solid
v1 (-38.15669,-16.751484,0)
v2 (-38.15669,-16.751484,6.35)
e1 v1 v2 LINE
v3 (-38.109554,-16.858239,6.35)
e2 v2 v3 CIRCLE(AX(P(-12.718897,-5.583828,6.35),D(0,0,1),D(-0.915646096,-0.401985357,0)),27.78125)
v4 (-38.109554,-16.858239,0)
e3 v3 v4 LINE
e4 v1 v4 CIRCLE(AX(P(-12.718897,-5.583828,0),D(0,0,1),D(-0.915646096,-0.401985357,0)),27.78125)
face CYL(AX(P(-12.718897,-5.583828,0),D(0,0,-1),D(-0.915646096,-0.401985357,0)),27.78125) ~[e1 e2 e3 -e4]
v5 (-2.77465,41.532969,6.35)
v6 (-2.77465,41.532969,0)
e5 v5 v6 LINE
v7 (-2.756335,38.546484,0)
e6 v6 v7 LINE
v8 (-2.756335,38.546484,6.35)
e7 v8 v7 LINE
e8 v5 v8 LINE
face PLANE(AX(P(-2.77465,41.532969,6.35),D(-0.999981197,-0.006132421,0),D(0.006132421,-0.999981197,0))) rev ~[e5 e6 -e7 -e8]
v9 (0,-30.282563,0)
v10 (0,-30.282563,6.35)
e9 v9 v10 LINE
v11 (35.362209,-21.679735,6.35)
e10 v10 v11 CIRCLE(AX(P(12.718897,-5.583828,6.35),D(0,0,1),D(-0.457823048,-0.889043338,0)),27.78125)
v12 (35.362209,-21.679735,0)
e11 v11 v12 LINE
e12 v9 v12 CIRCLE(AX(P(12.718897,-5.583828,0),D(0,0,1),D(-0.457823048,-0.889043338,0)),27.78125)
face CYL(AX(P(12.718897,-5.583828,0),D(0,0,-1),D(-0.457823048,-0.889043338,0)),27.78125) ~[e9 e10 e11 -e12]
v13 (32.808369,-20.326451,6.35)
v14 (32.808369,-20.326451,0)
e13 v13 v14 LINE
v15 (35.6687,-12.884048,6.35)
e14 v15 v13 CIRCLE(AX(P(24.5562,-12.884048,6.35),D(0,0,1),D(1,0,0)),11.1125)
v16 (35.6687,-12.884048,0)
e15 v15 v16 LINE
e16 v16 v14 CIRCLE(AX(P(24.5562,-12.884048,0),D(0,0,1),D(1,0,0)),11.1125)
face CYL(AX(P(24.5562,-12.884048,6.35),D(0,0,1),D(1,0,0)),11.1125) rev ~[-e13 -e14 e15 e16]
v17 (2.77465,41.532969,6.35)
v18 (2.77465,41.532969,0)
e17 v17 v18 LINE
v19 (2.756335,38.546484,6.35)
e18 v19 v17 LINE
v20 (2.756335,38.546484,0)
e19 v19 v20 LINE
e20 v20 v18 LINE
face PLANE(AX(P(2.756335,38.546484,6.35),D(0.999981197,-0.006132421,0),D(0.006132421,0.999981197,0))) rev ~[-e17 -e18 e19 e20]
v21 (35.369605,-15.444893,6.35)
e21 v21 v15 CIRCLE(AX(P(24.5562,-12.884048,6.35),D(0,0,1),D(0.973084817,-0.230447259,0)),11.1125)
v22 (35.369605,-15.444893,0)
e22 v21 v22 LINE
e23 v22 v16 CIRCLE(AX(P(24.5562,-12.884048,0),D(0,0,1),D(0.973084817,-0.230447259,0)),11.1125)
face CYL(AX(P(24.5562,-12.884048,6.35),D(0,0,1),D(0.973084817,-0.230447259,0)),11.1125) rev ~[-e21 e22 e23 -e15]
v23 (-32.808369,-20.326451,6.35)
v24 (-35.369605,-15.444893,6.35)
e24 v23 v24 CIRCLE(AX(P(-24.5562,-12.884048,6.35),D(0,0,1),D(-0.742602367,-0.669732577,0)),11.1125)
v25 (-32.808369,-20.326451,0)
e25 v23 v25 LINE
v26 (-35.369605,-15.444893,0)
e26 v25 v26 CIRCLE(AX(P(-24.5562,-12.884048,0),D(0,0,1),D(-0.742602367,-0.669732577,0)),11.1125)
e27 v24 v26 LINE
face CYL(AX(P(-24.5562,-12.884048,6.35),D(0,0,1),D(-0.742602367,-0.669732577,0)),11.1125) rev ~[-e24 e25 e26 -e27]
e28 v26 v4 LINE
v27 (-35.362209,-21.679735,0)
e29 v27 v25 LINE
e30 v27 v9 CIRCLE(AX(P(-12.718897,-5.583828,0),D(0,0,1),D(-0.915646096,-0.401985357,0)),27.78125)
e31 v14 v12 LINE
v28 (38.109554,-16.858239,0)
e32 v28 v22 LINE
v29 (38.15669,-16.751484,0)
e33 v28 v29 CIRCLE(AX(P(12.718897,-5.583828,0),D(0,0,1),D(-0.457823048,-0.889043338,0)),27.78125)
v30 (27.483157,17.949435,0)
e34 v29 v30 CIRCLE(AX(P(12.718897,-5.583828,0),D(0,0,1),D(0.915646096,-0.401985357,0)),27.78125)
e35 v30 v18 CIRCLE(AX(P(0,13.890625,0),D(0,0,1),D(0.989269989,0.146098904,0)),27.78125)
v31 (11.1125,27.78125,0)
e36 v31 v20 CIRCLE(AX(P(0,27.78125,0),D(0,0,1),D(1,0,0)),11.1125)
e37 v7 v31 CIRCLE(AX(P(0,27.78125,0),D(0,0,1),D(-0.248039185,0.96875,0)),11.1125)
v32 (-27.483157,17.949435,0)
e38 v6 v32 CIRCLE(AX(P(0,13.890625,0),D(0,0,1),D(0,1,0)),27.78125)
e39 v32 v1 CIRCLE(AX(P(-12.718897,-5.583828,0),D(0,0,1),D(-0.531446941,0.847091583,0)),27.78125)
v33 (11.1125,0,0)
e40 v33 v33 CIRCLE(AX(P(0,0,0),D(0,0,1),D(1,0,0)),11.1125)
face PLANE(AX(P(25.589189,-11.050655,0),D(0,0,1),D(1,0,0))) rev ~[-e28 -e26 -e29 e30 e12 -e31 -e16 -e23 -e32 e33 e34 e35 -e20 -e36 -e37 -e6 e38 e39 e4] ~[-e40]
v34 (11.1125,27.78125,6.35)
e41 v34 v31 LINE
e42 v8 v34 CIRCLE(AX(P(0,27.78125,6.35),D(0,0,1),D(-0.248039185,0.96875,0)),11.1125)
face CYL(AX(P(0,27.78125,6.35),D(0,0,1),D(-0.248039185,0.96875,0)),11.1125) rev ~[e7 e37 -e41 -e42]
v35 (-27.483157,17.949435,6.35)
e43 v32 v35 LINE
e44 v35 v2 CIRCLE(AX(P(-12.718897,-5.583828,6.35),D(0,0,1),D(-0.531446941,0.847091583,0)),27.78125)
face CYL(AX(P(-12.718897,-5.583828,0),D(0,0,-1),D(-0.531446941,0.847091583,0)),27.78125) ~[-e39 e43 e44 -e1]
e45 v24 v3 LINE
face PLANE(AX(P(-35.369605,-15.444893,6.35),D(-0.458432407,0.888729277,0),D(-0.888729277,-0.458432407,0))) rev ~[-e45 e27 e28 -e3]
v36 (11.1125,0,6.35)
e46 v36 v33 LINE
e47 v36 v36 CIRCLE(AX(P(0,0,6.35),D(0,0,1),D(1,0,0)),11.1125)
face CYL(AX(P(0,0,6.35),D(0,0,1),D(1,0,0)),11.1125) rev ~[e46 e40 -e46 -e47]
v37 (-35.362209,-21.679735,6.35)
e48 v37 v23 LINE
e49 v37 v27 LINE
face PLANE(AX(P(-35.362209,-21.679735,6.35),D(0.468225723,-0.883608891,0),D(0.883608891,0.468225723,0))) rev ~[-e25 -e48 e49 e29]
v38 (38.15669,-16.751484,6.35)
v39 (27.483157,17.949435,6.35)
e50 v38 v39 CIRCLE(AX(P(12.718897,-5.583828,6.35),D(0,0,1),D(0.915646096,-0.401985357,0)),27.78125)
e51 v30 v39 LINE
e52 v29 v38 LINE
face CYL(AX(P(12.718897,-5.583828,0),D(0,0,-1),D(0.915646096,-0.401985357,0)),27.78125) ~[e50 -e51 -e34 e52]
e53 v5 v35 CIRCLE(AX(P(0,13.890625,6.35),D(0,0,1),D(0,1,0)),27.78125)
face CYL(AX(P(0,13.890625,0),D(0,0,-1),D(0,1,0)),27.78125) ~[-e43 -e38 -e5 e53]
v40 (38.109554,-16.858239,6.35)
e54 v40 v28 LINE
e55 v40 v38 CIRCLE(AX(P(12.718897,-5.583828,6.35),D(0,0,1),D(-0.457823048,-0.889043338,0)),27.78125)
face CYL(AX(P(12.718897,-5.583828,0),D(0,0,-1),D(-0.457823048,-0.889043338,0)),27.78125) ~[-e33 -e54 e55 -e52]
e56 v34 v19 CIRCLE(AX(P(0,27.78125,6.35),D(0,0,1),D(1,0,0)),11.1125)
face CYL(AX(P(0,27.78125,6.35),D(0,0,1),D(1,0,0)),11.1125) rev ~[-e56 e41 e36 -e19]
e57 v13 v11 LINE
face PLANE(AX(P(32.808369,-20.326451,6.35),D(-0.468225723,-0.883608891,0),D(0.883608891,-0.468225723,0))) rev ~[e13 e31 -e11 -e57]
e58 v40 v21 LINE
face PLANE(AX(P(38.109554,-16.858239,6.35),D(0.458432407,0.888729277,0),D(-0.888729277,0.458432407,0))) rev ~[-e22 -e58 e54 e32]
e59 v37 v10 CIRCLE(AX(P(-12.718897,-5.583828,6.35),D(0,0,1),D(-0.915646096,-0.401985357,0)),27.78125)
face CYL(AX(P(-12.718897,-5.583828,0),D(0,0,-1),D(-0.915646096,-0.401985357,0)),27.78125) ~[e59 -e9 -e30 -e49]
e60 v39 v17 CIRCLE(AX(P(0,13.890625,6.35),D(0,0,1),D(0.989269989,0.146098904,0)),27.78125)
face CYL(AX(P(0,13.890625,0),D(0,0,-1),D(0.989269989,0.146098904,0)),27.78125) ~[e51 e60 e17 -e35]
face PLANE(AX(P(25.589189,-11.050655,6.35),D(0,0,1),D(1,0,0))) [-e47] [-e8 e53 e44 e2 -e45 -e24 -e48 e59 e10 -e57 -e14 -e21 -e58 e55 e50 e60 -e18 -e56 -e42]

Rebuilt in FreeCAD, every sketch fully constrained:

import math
import FreeCAD as App
import Part
import Sketcher
from FreeCAD import Vector
Q = App.Units.Quantity

doc = App.newDocument("Part")
body = doc.addObject("PartDesign::Body", "Body")

# Sketch on XY plane
sketch1 = body.newObject("Sketcher::SketchObject", "Sketch")
sketch1.AttachmentSupport = (doc.getObject("XY_Plane"), [""])
sketch1.MapMode = "FlatFace"
sketch1.addGeometry([
    Part.ArcOfCircle(Part.Circle(Vector(0, 13.890625, 0), Vector(0, 0, 1), 27.78125), math.radians(8.400919), math.radians(90)),  # 0
    Part.ArcOfCircle(Part.Circle(Vector(0, 13.890625, 0), Vector(0, 0, 1), 27.78125), math.radians(90), math.radians(171.599081)),  # 1
    Part.ArcOfCircle(Part.Circle(Vector(-12.718897, -5.583828, 0), Vector(0, 0, 1), 27.78125), math.radians(122.103271), math.radians(203.702352)),  # 2
    Part.ArcOfCircle(Part.Circle(Vector(-12.718897, -5.583828, 0), Vector(0, 0, 1), 27.78125), math.radians(-156.297648), math.radians(-62.753278)),  # 3
    Part.ArcOfCircle(Part.Circle(Vector(12.718897, -5.583828, 0), Vector(0, 0, 1), 27.78125), math.radians(-117.246722), math.radians(-23.702352)),  # 4
    Part.ArcOfCircle(Part.Circle(Vector(12.718897, -5.583828, 0), Vector(0, 0, 1), 27.78125), math.radians(-23.702352), math.radians(57.896729)),  # 5
], False)
sketch1.addConstraint([
    Sketcher.Constraint("Tangent", 0, 2, 1, 1),
    Sketcher.Constraint("Coincident", 1, 2, 2, 1),
    Sketcher.Constraint("Tangent", 2, 2, 3, 1),
    Sketcher.Constraint("Coincident", 3, 2, 4, 1),
    Sketcher.Constraint("Tangent", 4, 2, 5, 1),
    Sketcher.Constraint("Coincident", 5, 2, 0, 1),
    Sketcher.Constraint("Equal", 0, 1),
    Sketcher.Constraint("Equal", 1, 2),
    Sketcher.Constraint("Equal", 2, 3),
    Sketcher.Constraint("Equal", 3, 4),
    Sketcher.Constraint("Equal", 4, 5),
    Sketcher.Constraint("Symmetric", 2, 3, 4, 3, -2),
    Sketcher.Constraint("PointOnObject", 0, 3, -2),
    Sketcher.Constraint("PointOnObject", 0, 2, -2),
    Sketcher.Constraint("Horizontal", 2, 2, 4, 2),
    Sketcher.Constraint("Radius", 0, Q("1.09375 in")),
    Sketcher.Constraint("DistanceY", -1, 1, 0, 3, Q("0.546875 in")),
    Sketcher.Constraint("DistanceX", 2, 2, -1, 1, Q("38.15669 mm")),
    Sketcher.Constraint("DistanceX", 1, 2, 2, 3, Q("14.76426 mm")),
    Sketcher.Constraint("DistanceY", 0, 3, 1, 2, Q("4.05881 mm")),
])
pad1 = body.newObject("PartDesign::Pad", "Pad")
pad1.Profile = sketch1
pad1.Length = Q("0.25 in")

# Sketch on XY plane
sketch2 = body.newObject("Sketcher::SketchObject", "Sketch001")
sketch2.AttachmentSupport = (doc.getObject("XY_Plane"), [""])
sketch2.MapMode = "FlatFace"
sketch2.AttachmentOffset = App.Placement(Vector(0, 0, 0.25 * 25.4), App.Rotation())
sketch2.addGeometry([
    Part.Circle(Vector(0, 0, 0), Vector(0, 0, 1), 11.1125),  # 0
    Part.ArcOfCircle(Part.Circle(Vector(0, 27.78125, 0), Vector(0, 0, 1), 11.1125), math.radians(104.361512), math.radians(360)),  # 1
    Part.ArcOfCircle(Part.Circle(Vector(0, 27.78125, 0), Vector(0, 0, 1), 11.1125), math.radians(0), math.radians(75.638488)),  # 2
    Part.LineSegment(Vector(2.756335, 38.546484, 0), Vector(2.77465, 41.532969, 0)),  # 3
    Part.ArcOfCircle(Part.Circle(Vector(0, 13.890625, 0), Vector(0, 0, 1), 27.78125), math.radians(84.268032), math.radians(90)),  # 4
    Part.ArcOfCircle(Part.Circle(Vector(0, 13.890625, 0), Vector(0, 0, 1), 27.78125), math.radians(90), math.radians(95.731968)),  # 5
    Part.LineSegment(Vector(-2.77465, 41.532969, 0), Vector(-2.756335, 38.546484, 0)),  # 6
    Part.ArcOfCircle(Part.Circle(Vector(-24.5562, -12.884048, 0), Vector(0, 0, 1), 11.1125), math.radians(-137.953572), math.radians(193.323405)),  # 7
    Part.LineSegment(Vector(-35.369605, -15.444893, 0), Vector(-38.109554, -16.858239, 0)),  # 8
    Part.ArcOfCircle(Part.Circle(Vector(-12.718897, -5.583828, 0), Vector(0, 0, 1), 27.78125), math.radians(-156.056972), math.radians(-150.325004)),  # 9
    Part.ArcOfCircle(Part.Circle(Vector(-12.718897, -5.583828, 0), Vector(0, 0, 1), 27.78125), math.radians(-150.325004), math.radians(-144.593036)),  # 10
    Part.LineSegment(Vector(-35.362209, -21.679735, 0), Vector(-32.808369, -20.326451, 0)),  # 11
    Part.ArcOfCircle(Part.Circle(Vector(24.5562, -12.884048, 0), Vector(0, 0, 1), 11.1125), math.radians(-13.323405), math.radians(0)),  # 12
    Part.ArcOfCircle(Part.Circle(Vector(24.5562, -12.884048, 0), Vector(0, 0, 1), 11.1125), math.radians(0), math.radians(317.953572)),  # 13
    Part.LineSegment(Vector(32.808369, -20.326451, 0), Vector(35.362209, -21.679735, 0)),  # 14
    Part.ArcOfCircle(Part.Circle(Vector(12.718897, -5.583828, 0), Vector(0, 0, 1), 27.78125), math.radians(-35.406964), math.radians(-29.674996)),  # 15
    Part.ArcOfCircle(Part.Circle(Vector(12.718897, -5.583828, 0), Vector(0, 0, 1), 27.78125), math.radians(-29.674996), math.radians(-23.943028)),  # 16
    Part.LineSegment(Vector(38.109554, -16.858239, 0), Vector(35.369605, -15.444893, 0)),  # 17
], False)
sketch2.addConstraint([
    Sketcher.Constraint("Tangent", 1, 2, 2, 1),
    Sketcher.Constraint("Coincident", 2, 2, 3, 1),
    Sketcher.Constraint("Coincident", 3, 2, 4, 1),
    Sketcher.Constraint("Tangent", 4, 2, 5, 1),
    Sketcher.Constraint("Coincident", 5, 2, 6, 1),
    Sketcher.Constraint("Coincident", 6, 2, 1, 1),
    Sketcher.Constraint("Coincident", 7, 2, 8, 1),
    Sketcher.Constraint("Coincident", 8, 2, 9, 1),
    Sketcher.Constraint("Tangent", 9, 2, 10, 1),
    Sketcher.Constraint("Coincident", 10, 2, 11, 1),
    Sketcher.Constraint("Coincident", 11, 2, 7, 1),
    Sketcher.Constraint("Tangent", 12, 2, 13, 1),
    Sketcher.Constraint("Coincident", 13, 2, 14, 1),
    Sketcher.Constraint("Coincident", 14, 2, 15, 1),
    Sketcher.Constraint("Tangent", 15, 2, 16, 1),
    Sketcher.Constraint("Coincident", 16, 2, 17, 1),
    Sketcher.Constraint("Coincident", 17, 2, 12, 1),
    Sketcher.Constraint("Coincident", 0, 3, -1, 1),
    Sketcher.Constraint("Equal", 0, 1),
    Sketcher.Constraint("Equal", 1, 2),
    Sketcher.Constraint("Equal", 4, 5),
    Sketcher.Constraint("Equal", 2, 7),
    Sketcher.Constraint("Equal", 5, 9),
    Sketcher.Constraint("Equal", 9, 10),
    Sketcher.Constraint("Equal", 7, 12),
    Sketcher.Constraint("Equal", 12, 13),
    Sketcher.Constraint("Equal", 10, 15),
    Sketcher.Constraint("Equal", 15, 16),
    Sketcher.Constraint("Symmetric", 7, 3, 12, 3, -2),
    Sketcher.Constraint("Symmetric", 9, 3, 15, 3, -2),
    Sketcher.Constraint("Symmetric", 3, 2, 5, 2, -2),
    Sketcher.Constraint("Symmetric", 2, 2, 6, 2, -2),
    Sketcher.Constraint("PointOnObject", 4, 2, -2),
    Sketcher.Constraint("Horizontal", 2, 3, 1, 2),
    Sketcher.Constraint("Horizontal", 13, 3, 12, 2),
    Sketcher.Constraint("Horizontal", 11, 2, 13, 2),
    Sketcher.Constraint("Horizontal", 10, 2, 14, 2),
    Sketcher.Constraint("Horizontal", 9, 2, 15, 2),
    Sketcher.Constraint("Horizontal", 8, 2, 16, 2),
    Sketcher.Constraint("Horizontal", 7, 2, 17, 2),
    Sketcher.Constraint("Diameter", 0, Q("0.875 in")),
    Sketcher.Constraint("Radius", 4, Q("1.09375 in")),
    Sketcher.Constraint("DistanceY", -1, 1, 1, 3, Q("1.09375 in")),
    Sketcher.Constraint("DistanceY", -1, 1, 4, 3, Q("0.546875 in")),
    Sketcher.Constraint("DistanceX", 7, 3, -1, 1, Q("24.5562 mm")),
    Sketcher.Constraint("DistanceY", 7, 3, 1, 3, Q("40.665298 mm")),
    Sketcher.Constraint("DistanceX", 5, 2, 3, 2, Q("5.5493 mm")),
    Sketcher.Constraint("DistanceX", 9, 2, 11, 2, Q("4.048201 mm")),
    Sketcher.Constraint("Distance", 3, Q("2.986541 mm")),
    Sketcher.Constraint("Distance", 11, Q("2.890239 mm")),
    Sketcher.Constraint("DistanceY", 8, 2, -1, 1, Q("16.858239 mm")),
    Sketcher.Constraint("DistanceX", 9, 2, -1, 1, Q("36.85657 mm")),
    Sketcher.Constraint("DistanceX", 10, 2, -1, 1, Q("35.362209 mm")),
    Sketcher.Constraint("DistanceY", 7, 3, 9, 3, Q("7.30022 mm")),
    Sketcher.Constraint("DistanceX", 7, 2, 9, 3, Q("22.650709 mm")),
])
pocket1 = body.newObject("PartDesign::Pocket", "Pocket")
pocket1.Profile = sketch2
pocket1.Length = Q("1 in")

doc.recompute()
